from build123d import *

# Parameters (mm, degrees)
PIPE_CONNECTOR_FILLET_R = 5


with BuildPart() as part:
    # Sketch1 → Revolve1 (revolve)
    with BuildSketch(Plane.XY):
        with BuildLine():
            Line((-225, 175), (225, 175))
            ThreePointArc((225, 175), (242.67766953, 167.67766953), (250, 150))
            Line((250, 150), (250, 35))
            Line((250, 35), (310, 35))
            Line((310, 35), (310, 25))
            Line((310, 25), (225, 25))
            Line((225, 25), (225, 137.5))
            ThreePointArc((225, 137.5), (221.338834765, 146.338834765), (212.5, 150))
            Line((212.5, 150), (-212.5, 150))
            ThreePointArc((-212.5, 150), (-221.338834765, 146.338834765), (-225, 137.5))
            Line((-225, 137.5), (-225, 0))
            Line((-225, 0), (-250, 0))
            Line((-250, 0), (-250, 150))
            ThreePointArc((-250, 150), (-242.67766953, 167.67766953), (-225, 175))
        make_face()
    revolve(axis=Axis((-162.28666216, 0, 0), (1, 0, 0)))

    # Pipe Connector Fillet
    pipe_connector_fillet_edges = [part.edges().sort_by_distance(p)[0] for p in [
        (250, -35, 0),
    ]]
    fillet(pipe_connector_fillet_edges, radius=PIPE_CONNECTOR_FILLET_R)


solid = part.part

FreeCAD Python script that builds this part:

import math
import FreeCAD as App
import Part
import Sketcher

V = App.Vector


def edges_at(feature, points):
    """Names of the edges that pass closest to the given points."""
    edges = feature.Shape.Edges
    near = lambda p: min(range(len(edges)), key=lambda i: edges[i].distToShape(Part.Vertex(*p))[0])
    return sorted({f"Edge{near(p) + 1}" for p in points})

doc = App.newDocument("Part")
body = doc.addObject("PartDesign::Body", "Body")

sketch1 = body.newObject("Sketcher::SketchObject", "Sketch")
sketch1.AttachmentSupport = (doc.getObject("XY_Plane"), [""])
sketch1.MapMode = "FlatFace"
sketch1.addGeometry(Part.LineSegment(V(225, 175, 0), V(-225, 175, 0)), False)
sketch1.addGeometry(Part.ArcOfCircle(Part.Circle(V(-225, 150, 0), V(0, 0, 1), 25), math.radians(90), math.radians(180)), False)
sketch1.addGeometry(Part.LineSegment(V(-250, 150, 0), V(-250, 0, 0)), False)
sketch1.addGeometry(Part.LineSegment(V(-250, 0, 0), V(-225, 0, 0)), False)
sketch1.addGeometry(Part.LineSegment(V(-225, 0, 0), V(-225, 138, 0)), False)
sketch1.addGeometry(Part.ArcOfCircle(Part.Circle(V(-213, 138, 0), V(0, 0, 1), 12), math.radians(90), math.radians(180)), False)
sketch1.addGeometry(Part.LineSegment(V(-212, 150, 0), V(212, 150, 0)), False)
sketch1.addGeometry(Part.ArcOfCircle(Part.Circle(V(213, 138, 0), V(0, 0, 1), 12), math.radians(0), math.radians(90)), False)
sketch1.addGeometry(Part.LineSegment(V(225, 138, 0), V(225, 25, 0)), False)
sketch1.addGeometry(Part.LineSegment(V(225, 25, 0), V(310, 25, 0)), False)
sketch1.addGeometry(Part.LineSegment(V(310, 25, 0), V(310, 35, 0)), False)
sketch1.addGeometry(Part.LineSegment(V(310, 35, 0), V(250, 35, 0)), False)
sketch1.addGeometry(Part.LineSegment(V(250, 35, 0), V(250, 150, 0)), False)
sketch1.addGeometry(Part.ArcOfCircle(Part.Circle(V(225, 150, 0), V(0, 0, 1), 25), math.radians(0), math.radians(90)), False)
sketch1.addConstraint(Sketcher.Constraint("Tangent", 0, 2, 1, 1))
sketch1.addConstraint(Sketcher.Constraint("Tangent", 1, 2, 2, 1))
sketch1.addConstraint(Sketcher.Constraint("Coincident", 2, 2, 3, 1))
sketch1.addConstraint(Sketcher.Constraint("Coincident", 3, 2, 4, 1))
sketch1.addConstraint(Sketcher.Constraint("Tangent", 4, 2, 5, 2))
sketch1.addConstraint(Sketcher.Constraint("Tangent", 5, 1, 6, 1))
sketch1.addConstraint(Sketcher.Constraint("Tangent", 6, 2, 7, 2))
sketch1.addConstraint(Sketcher.Constraint("Tangent", 7, 1, 8, 1))
sketch1.addConstraint(Sketcher.Constraint("Coincident", 8, 2, 9, 1))
sketch1.addConstraint(Sketcher.Constraint("Coincident", 9, 2, 10, 1))
sketch1.addConstraint(Sketcher.Constraint("Coincident", 10, 2, 11, 1))
sketch1.addConstraint(Sketcher.Constraint("Coincident", 11, 2, 12, 1))
sketch1.addConstraint(Sketcher.Constraint("Tangent", 12, 2, 13, 1))
sketch1.addConstraint(Sketcher.Constraint("Tangent", 13, 2, 0, 1))
sketch1.addConstraint(Sketcher.Constraint("Horizontal", 0))
sketch1.addConstraint(Sketcher.Constraint("Vertical", 2))
sketch1.addConstraint(Sketcher.Constraint("Horizontal", 3))
sketch1.addConstraint(Sketcher.Constraint("Vertical", 4))
sketch1.addConstraint(Sketcher.Constraint("Horizontal", 6))
sketch1.addConstraint(Sketcher.Constraint("Vertical", 8))
sketch1.addConstraint(Sketcher.Constraint("Horizontal", 9))
sketch1.addConstraint(Sketcher.Constraint("Vertical", 10))
sketch1.addConstraint(Sketcher.Constraint("Horizontal", 11))
sketch1.addConstraint(Sketcher.Constraint("Vertical", 12))
sketch1.addConstraint(Sketcher.Constraint("Equal", 5, 7))
sketch1.addConstraint(Sketcher.Constraint("Equal", 1, 13))
sketch1.addConstraint(Sketcher.Constraint("PointOnObject", 2, 2, -1))
sketch1.addConstraint(Sketcher.Constraint("Horizontal", 1, 2, 5, 1))
sketch1.addConstraint(Sketcher.Constraint("Vertical", 0, 2, 3, 2))
sketch1.addConstraint(Sketcher.Constraint("Vertical", 13, 3, 7, 1))
sketch1.addConstraint(Sketcher.Constraint("Radius", 1, 25.0))
sketch1.addConstraint(Sketcher.Constraint("Radius", 5, 12.5))
sketch1.addConstraint(Sketcher.Constraint("DistanceX", 0, 2, 0, 1, 450.0))
sketch1.addConstraint(Sketcher.Constraint("DistanceX", 9, 1, 9, 2, 85.0))
sketch1.addConstraint(Sketcher.Constraint("DistanceY", 2, 2, 2, 1, 150.0))
sketch1.addConstraint(Sketcher.Constraint("DistanceY", 10, 1, 10, 2, 10.0))
sketch1.addConstraint(Sketcher.Constraint("DistanceY", 12, 1, 12, 2, 115.0))
sketch1.addConstraint(Sketcher.Constraint("DistanceX", 1, 3, -1, 1, 225.0))
revolution = body.newObject("PartDesign::Revolution", "Revolution")
revolution.Profile = sketch1
revolution.ReferenceAxis = (sketch1, ["H_Axis"])
revolution.Angle = 360
doc.recompute()

fillet = body.newObject("PartDesign::Fillet", "Fillet")
fillet.Base = (revolution, edges_at(revolution, [(250, -35, 0)]))
fillet.Radius = 5

doc.recompute()
